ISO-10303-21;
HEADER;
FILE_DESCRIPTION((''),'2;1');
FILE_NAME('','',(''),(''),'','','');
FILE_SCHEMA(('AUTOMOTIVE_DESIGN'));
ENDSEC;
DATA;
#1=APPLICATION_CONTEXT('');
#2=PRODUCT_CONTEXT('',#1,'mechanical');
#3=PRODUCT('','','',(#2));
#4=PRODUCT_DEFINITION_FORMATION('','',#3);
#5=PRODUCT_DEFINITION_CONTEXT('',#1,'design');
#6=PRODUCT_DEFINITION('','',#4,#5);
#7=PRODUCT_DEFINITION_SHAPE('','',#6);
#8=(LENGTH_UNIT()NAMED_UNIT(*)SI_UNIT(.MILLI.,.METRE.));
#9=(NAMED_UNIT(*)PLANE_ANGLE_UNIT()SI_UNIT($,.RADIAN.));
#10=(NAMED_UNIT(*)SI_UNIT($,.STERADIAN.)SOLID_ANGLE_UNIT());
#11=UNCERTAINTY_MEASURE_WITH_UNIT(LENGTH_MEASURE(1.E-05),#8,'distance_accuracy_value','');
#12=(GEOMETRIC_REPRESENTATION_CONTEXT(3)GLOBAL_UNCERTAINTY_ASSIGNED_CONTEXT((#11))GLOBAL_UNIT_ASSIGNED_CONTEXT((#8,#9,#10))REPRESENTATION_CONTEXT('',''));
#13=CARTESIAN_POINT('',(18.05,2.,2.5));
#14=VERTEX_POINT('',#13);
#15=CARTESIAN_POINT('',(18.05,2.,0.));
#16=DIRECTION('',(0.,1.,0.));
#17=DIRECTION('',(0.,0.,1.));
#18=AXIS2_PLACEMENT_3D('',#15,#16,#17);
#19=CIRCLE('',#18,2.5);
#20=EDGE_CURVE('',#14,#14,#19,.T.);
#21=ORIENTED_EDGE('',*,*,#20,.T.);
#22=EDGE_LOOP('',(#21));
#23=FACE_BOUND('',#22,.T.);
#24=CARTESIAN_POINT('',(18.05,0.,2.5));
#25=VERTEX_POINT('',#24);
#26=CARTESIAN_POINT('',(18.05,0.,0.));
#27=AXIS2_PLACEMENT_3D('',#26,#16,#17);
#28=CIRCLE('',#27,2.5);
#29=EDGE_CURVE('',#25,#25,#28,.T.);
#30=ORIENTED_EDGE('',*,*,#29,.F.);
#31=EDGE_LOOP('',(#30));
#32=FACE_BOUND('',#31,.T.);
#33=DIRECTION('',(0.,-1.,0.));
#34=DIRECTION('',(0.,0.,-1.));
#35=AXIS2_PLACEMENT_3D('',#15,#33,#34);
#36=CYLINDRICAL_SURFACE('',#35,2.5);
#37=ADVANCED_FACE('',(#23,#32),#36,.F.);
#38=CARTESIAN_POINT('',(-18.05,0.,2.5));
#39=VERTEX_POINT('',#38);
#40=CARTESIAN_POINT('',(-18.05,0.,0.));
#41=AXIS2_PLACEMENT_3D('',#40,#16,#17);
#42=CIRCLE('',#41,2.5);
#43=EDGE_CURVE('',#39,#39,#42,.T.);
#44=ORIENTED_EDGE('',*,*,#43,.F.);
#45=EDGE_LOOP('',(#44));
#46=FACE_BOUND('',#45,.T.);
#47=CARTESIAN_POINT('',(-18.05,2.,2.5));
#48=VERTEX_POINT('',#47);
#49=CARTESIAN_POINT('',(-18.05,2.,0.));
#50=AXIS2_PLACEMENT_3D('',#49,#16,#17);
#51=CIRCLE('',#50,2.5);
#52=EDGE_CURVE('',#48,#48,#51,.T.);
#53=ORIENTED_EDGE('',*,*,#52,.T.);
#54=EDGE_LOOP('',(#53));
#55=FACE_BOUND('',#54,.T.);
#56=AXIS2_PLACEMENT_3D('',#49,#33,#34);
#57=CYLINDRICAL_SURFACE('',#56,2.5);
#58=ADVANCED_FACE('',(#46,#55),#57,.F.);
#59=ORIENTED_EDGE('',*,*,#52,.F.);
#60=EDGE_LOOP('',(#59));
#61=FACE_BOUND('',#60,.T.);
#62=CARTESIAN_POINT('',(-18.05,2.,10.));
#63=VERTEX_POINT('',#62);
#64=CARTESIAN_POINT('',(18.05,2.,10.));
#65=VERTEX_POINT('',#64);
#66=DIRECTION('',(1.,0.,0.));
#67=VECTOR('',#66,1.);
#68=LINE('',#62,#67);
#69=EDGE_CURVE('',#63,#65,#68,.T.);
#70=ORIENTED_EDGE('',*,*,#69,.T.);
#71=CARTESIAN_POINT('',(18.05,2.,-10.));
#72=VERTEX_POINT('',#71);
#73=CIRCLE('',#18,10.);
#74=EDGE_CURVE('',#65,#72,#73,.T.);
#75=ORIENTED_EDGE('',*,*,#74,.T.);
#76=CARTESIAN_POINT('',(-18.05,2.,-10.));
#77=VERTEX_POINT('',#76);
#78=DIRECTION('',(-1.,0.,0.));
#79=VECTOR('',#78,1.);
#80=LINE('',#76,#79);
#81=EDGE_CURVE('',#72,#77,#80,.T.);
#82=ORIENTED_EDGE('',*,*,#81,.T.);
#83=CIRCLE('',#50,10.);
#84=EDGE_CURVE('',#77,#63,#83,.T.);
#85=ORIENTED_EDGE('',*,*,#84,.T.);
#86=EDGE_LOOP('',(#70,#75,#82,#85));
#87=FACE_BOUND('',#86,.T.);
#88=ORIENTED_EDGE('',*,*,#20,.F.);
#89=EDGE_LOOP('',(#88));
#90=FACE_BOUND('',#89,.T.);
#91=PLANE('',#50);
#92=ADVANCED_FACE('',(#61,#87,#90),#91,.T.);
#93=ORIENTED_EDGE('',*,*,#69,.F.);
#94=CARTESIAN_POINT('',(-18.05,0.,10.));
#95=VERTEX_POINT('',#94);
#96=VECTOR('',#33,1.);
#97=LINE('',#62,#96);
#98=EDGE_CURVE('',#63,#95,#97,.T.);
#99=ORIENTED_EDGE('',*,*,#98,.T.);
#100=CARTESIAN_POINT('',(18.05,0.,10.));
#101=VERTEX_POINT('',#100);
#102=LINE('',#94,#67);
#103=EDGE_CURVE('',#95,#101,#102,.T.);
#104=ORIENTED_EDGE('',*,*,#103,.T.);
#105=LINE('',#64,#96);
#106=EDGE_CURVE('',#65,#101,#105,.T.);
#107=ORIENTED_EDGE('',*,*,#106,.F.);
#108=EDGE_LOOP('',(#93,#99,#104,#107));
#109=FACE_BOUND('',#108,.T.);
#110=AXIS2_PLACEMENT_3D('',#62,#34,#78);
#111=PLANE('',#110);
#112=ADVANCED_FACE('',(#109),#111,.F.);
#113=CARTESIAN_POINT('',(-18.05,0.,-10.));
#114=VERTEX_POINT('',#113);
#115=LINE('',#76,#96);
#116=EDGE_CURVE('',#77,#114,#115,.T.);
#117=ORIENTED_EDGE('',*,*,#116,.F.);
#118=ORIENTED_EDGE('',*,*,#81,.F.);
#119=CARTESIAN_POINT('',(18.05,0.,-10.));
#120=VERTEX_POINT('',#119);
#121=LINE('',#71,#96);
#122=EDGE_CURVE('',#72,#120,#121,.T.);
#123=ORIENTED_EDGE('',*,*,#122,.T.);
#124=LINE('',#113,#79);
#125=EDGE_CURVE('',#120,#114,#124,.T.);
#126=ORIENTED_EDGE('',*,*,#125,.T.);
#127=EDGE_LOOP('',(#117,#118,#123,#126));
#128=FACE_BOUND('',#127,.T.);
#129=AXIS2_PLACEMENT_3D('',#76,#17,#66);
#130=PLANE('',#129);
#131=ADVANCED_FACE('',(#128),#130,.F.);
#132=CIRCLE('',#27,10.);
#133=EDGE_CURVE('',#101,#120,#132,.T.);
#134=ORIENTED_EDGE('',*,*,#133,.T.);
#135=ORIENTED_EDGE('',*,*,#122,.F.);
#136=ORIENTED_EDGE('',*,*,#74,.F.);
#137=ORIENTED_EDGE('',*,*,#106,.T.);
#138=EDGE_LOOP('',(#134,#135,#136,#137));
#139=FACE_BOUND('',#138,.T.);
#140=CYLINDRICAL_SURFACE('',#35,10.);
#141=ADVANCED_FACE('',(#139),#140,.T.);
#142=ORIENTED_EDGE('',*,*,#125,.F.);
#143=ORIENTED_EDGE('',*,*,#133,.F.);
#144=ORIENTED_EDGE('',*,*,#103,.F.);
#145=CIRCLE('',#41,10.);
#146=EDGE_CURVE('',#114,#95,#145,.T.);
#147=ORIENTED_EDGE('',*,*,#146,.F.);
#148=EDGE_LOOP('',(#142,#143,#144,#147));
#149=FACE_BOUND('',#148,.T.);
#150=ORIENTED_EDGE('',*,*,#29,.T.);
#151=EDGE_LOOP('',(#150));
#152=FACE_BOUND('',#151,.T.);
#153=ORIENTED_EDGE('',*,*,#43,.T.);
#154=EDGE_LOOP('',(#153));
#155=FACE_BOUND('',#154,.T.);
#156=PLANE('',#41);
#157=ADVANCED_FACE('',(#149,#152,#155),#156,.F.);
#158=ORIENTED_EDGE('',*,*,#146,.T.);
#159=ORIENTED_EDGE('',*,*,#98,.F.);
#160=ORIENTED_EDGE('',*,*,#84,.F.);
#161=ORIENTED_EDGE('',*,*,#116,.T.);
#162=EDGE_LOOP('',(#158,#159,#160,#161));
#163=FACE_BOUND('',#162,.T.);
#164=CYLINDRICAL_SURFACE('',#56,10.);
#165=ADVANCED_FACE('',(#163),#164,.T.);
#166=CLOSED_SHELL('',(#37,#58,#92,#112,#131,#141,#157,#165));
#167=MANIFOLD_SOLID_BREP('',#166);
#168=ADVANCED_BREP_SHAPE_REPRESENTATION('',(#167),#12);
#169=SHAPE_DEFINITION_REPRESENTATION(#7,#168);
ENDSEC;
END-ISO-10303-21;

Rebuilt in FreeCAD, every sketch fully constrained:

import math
import FreeCAD as App
import Part
import Sketcher
from FreeCAD import Vector

doc = App.newDocument("Part")
body = doc.addObject("PartDesign::Body", "Body")

sketch1 = doc.addObject("Sketcher::SketchObject", "Sketch")
body.addObject(sketch1)
sketch1.AttachmentSupport = (doc.XZ_Plane, [""])
sketch1.MapMode = "FlatFace"
sketch1.addGeometry([
    Part.LineSegment(Vector(18.05, -10, 0), Vector(-18.05, -10, 0)),
    Part.ArcOfCircle(Part.Circle(Vector(-18.05, 0, 0), Vector(0, 0, 1), 10), math.radians(90), math.radians(270)),
    Part.LineSegment(Vector(-18.05, 10, 0), Vector(18.05, 10, 0)),
    Part.ArcOfCircle(Part.Circle(Vector(18.05, 0, 0), Vector(0, 0, 1), 10), math.radians(-90), math.radians(90)),
    Part.Circle(Vector(18.05, 0, 0), Vector(0, 0, 1), 2.5),
    Part.Circle(Vector(-18.05, 0, 0), Vector(0, 0, 1), 2.5),
], False)
sketch1.addConstraint([
    Sketcher.Constraint("Tangent", 0, 2, 1, 2),
    Sketcher.Constraint("Tangent", 1, 1, 2, 1),
    Sketcher.Constraint("Tangent", 2, 2, 3, 2),
    Sketcher.Constraint("Tangent", 3, 1, 0, 1),
    Sketcher.Constraint("Horizontal", 0),
    Sketcher.Constraint("Horizontal", 2),
    Sketcher.Constraint("Coincident", 4, 3, 3, 3),
    Sketcher.Constraint("Coincident", 5, 3, 1, 3),
    Sketcher.Constraint("Equal", 4, 5),
    Sketcher.Constraint("Symmetric", 1, 3, 3, 3, -1, 1),
    Sketcher.Constraint("Diameter", 4, 5.0),
    Sketcher.Constraint("Radius", 1, 10.0),
    Sketcher.Constraint("DistanceX", 0, 2, 0, 1, 36.1),
])
pad1 = doc.addObject("PartDesign::Pad", "Pad")
body.addObject(pad1)
pad1.Profile = sketch1
pad1.Length = 2
pad1.Reversed = True

doc.recompute()
